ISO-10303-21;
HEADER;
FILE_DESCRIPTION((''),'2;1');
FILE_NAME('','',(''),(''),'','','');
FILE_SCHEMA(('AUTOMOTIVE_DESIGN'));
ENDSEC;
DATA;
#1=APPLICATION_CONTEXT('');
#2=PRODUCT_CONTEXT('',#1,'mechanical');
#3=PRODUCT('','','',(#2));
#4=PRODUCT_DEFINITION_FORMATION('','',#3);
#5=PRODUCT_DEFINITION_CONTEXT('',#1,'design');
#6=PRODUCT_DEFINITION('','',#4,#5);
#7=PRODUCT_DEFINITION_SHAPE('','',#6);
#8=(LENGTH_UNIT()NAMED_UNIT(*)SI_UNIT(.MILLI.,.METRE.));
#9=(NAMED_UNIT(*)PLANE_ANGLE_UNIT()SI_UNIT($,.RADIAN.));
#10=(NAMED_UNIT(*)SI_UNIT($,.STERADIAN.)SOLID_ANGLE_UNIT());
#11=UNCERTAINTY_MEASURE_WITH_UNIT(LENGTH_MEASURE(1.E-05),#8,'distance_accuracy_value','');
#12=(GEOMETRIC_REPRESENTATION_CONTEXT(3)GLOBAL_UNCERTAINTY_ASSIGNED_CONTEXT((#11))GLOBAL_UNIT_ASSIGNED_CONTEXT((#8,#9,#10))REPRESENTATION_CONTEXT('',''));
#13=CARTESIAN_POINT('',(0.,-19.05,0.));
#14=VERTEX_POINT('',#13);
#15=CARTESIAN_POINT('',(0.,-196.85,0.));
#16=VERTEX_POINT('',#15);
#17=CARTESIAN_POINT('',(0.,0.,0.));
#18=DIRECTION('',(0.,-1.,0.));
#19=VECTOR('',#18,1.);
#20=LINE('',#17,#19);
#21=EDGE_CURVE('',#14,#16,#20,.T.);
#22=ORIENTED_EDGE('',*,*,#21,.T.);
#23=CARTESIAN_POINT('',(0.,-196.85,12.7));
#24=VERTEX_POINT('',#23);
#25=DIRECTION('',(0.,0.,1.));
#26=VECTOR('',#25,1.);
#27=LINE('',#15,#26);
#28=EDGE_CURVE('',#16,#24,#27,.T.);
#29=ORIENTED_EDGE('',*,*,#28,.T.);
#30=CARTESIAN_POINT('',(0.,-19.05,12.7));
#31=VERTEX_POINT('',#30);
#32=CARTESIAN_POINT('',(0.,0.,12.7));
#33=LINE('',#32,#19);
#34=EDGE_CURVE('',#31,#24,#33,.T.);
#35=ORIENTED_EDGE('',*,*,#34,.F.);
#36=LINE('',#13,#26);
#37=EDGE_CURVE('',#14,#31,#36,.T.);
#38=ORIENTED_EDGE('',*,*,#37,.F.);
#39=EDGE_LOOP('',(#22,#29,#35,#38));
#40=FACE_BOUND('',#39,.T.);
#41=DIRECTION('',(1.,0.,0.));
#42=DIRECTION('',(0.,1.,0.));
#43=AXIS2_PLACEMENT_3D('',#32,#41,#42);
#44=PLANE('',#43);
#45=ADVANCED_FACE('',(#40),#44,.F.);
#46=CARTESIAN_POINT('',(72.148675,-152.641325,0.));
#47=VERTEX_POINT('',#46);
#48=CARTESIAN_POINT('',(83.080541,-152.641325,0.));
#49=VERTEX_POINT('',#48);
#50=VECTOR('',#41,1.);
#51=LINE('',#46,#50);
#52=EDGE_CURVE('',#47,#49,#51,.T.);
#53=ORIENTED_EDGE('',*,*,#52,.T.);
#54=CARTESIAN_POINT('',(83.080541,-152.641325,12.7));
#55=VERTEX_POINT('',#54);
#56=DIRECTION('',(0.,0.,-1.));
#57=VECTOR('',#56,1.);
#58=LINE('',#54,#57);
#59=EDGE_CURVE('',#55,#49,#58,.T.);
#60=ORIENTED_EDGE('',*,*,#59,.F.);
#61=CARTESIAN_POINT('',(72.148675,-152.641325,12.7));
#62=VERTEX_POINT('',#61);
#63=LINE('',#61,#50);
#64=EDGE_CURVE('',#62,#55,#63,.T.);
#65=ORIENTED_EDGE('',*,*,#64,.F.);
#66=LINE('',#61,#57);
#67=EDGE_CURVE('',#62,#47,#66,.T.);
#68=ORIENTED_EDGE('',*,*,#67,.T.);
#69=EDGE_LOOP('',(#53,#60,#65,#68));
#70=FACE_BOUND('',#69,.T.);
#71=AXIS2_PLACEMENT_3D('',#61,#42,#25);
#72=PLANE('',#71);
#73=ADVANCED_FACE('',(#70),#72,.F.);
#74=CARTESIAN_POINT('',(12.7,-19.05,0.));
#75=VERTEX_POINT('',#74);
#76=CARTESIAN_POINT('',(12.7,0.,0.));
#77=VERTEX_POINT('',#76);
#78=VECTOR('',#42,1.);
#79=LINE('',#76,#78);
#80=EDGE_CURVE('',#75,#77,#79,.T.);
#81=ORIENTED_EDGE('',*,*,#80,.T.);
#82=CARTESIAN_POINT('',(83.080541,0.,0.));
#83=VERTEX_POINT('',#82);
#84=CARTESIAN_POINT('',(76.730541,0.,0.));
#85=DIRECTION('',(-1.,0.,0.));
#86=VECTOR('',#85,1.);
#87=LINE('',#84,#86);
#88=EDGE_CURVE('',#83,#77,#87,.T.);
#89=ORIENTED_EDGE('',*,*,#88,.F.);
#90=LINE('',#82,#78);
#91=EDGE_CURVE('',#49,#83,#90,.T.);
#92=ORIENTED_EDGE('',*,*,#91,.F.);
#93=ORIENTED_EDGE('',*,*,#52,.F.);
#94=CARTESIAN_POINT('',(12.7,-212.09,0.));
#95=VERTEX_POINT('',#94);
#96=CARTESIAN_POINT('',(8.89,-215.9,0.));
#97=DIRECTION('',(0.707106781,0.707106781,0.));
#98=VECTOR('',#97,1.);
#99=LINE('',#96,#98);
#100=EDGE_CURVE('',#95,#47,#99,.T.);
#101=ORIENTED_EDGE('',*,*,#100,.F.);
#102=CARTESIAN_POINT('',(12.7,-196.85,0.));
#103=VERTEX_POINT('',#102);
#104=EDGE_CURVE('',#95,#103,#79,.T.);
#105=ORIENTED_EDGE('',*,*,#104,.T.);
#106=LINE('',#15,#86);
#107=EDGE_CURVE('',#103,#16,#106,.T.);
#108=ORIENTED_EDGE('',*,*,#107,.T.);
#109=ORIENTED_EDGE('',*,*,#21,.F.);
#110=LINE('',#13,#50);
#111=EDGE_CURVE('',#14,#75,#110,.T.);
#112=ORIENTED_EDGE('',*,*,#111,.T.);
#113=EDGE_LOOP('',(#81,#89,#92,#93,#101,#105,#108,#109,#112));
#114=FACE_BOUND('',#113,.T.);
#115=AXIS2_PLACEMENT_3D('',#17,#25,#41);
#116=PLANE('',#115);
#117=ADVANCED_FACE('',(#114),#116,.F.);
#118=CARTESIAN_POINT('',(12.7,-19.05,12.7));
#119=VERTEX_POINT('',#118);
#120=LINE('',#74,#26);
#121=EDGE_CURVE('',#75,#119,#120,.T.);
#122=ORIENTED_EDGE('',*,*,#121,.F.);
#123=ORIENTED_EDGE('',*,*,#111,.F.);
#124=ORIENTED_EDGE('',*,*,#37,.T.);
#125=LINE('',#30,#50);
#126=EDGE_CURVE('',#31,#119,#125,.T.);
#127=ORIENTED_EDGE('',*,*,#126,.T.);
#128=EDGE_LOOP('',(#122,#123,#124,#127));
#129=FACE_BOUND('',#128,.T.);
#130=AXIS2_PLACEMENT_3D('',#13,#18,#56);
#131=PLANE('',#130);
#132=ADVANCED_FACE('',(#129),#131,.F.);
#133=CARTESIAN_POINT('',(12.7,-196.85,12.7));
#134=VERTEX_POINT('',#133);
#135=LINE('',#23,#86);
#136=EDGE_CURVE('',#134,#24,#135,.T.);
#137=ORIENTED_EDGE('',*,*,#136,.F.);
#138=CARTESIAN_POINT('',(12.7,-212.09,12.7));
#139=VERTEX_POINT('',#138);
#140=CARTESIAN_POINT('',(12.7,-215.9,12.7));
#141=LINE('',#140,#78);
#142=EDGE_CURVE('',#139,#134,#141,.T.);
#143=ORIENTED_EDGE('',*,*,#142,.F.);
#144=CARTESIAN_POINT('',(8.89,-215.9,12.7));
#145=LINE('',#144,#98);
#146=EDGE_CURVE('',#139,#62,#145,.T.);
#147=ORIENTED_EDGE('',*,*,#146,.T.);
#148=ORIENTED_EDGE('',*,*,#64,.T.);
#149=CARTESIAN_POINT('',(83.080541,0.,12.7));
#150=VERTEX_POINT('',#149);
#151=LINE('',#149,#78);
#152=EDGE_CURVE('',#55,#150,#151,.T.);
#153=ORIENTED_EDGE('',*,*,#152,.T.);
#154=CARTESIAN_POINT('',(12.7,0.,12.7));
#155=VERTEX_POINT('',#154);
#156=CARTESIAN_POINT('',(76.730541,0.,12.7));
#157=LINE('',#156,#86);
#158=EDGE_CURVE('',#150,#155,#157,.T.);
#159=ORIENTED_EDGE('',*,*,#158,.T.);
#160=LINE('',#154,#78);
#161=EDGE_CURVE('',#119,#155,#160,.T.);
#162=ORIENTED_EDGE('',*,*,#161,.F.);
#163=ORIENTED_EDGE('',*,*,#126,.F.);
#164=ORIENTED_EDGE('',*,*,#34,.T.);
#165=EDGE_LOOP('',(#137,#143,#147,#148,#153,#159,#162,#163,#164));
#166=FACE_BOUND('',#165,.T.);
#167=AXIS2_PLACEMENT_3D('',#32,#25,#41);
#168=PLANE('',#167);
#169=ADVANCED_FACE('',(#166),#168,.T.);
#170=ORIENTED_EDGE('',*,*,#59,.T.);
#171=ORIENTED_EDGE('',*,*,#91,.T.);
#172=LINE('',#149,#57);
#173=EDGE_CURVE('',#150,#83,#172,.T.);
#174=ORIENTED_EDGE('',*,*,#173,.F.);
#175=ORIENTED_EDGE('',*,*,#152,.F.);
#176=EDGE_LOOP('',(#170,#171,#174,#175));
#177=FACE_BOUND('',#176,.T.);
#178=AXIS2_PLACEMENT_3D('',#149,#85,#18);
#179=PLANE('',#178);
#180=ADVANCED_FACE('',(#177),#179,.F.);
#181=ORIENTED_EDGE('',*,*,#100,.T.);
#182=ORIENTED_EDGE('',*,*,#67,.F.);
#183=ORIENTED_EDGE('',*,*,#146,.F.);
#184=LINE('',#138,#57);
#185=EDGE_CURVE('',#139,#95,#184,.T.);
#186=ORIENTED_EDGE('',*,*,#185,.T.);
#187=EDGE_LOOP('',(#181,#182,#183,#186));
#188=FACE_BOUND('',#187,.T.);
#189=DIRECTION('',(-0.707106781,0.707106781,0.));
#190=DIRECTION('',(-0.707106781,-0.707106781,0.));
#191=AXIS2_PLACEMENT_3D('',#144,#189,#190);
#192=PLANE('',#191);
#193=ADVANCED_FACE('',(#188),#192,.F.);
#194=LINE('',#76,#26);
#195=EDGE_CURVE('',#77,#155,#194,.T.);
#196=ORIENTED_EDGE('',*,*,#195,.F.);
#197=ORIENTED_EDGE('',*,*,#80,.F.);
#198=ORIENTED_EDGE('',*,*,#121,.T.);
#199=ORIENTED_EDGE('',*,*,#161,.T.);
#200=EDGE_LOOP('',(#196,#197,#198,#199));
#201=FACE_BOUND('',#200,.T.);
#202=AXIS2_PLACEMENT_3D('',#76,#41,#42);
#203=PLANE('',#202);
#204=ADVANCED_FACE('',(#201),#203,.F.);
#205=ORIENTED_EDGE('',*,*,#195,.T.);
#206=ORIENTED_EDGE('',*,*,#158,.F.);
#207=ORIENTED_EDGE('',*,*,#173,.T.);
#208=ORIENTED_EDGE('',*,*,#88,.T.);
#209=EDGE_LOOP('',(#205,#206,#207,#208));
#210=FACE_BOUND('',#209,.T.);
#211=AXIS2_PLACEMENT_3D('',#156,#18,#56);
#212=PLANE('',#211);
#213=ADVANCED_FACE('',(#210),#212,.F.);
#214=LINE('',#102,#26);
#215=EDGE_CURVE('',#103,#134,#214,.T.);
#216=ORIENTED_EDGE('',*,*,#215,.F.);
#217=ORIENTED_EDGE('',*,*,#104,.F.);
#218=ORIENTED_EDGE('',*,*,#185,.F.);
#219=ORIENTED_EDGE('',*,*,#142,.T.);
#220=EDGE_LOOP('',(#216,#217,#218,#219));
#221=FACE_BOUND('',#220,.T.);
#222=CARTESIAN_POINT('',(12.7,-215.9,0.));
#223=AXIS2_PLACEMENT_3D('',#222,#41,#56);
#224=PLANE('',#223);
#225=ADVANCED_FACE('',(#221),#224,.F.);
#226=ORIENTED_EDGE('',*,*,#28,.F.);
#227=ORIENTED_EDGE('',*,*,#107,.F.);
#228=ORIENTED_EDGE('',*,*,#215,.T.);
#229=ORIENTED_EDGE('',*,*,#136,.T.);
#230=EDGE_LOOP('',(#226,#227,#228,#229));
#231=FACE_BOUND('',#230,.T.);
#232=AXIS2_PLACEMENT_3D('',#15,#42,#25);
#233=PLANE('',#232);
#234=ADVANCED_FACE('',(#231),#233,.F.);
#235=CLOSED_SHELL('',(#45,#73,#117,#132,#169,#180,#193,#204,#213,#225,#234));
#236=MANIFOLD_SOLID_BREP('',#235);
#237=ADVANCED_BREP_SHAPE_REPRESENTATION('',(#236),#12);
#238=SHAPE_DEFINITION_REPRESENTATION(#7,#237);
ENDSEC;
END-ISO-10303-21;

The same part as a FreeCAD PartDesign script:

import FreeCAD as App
import Part
import Sketcher
Q = App.Units.Quantity


def add_polygon(sketch, points):
    """Adds a closed chain of lines whose ends are joined by coincident constraints."""
    first, n = sketch.GeometryCount, len(points)
    for a, b in zip(points, points[1:] + points[:1]):
        sketch.addGeometry(Part.LineSegment(App.Vector(*a, 0), App.Vector(*b, 0)), False)
    for i in range(n):
        sketch.addConstraint(Sketcher.Constraint("Coincident", first + i, 2, first + (i + 1) % n, 1))

doc = App.newDocument("Part")
params = doc.addObject("Spreadsheet::Sheet", "Params")
for row, (alias, value) in enumerate([
    ("sketch1_height", "8.5 in"),
    ("sketch1_width", "0.35 in"),
    ("pad1_length", "0.5 in"),
    ("sketch2_width", "0.5 in"),
    ("sketch2_height", "0.75 in"),
], start=1):
    params.set(f"A{row}", alias)
    params.set(f"B{row}", "=" + value)
    params.setAlias(f"B{row}", alias)

body = doc.addObject("PartDesign::Body", "Body")

# Sketch on XY plane
sketch1 = body.newObject("Sketcher::SketchObject", "Sketch")
sketch1.AttachmentSupport = (doc.getObject("XY_Plane"), [""])
sketch1.MapMode = "FlatFace"
add_polygon(sketch1, [(0, -215.9), (8.89, -215.9), (72.148675, -152.641325), (83.080541, -152.641325), (83.080541, 0), (0, 0)])  # lines 0-5
sketch1.addConstraint([
    Sketcher.Constraint("Horizontal", 0),
    Sketcher.Constraint("Horizontal", 2),
    Sketcher.Constraint("Vertical", 3),
    Sketcher.Constraint("Horizontal", 4),
    Sketcher.Constraint("Vertical", 5),
    Sketcher.Constraint("Coincident", 4, 2, -1, 1),
    Sketcher.Constraint("DistanceY", 5, 2, 5, 1, Q("8.5 in")),
    Sketcher.Constraint("Angle", 1, Q("45 deg")),
    Sketcher.Constraint("DistanceX", 0, 1, 0, 2, Q("0.35 in")),
    Sketcher.Constraint("DistanceX", 4, 2, 4, 1, 83.080541),
    Sketcher.Constraint("DistanceX", 2, 1, 2, 2, 10.931866),
])
sketch1.setExpression("Constraints[12]", "Params.sketch1_height")
sketch1.setExpression("Constraints[14]", "Params.sketch1_width")
pad1 = body.newObject("PartDesign::Pad", "Pad")
pad1.Profile = sketch1
pad1.setExpression("Length", "Params.pad1_length")

# Sketch on XY plane
sketch2 = body.newObject("Sketcher::SketchObject", "Sketch001")
sketch2.AttachmentSupport = (doc.getObject("XY_Plane"), [""])
sketch2.MapMode = "FlatFace"
sketch2.AttachmentOffset = App.Placement(App.Vector(0, 0, 0.5 * 25.4), App.Rotation())
add_polygon(sketch2, [(0, 0), (0, -19.05), (12.7, -19.05), (12.7, 0)])  # lines 0-3
add_polygon(sketch2, [(0, -196.85), (0, -215.9), (12.7, -215.9), (12.7, -196.85)])  # lines 4-7
sketch2.addConstraint([
    Sketcher.Constraint("Vertical", 0),
    Sketcher.Constraint("Horizontal", 1),
    Sketcher.Constraint("Vertical", 2),
    Sketcher.Constraint("Horizontal", 3),
    Sketcher.Constraint("Vertical", 4),
    Sketcher.Constraint("Horizontal", 5),
    Sketcher.Constraint("Vertical", 6),
    Sketcher.Constraint("Horizontal", 7),
    Sketcher.Constraint("Coincident", 3, 2, -1, 1),
    Sketcher.Constraint("PointOnObject", 4, 2, -2),
    Sketcher.Constraint("Vertical", 2, 2, 5, 2),
    Sketcher.Constraint("Equal", 2, 4),
    Sketcher.Constraint("DistanceX", 1, 1, 1, 2, Q("0.5 in")),
    Sketcher.Constraint("DistanceY", 6, 2, 1, 2, Q("7 in")),
    Sketcher.Constraint("DistanceY", 0, 2, 0, 1, Q("0.75 in")),
])
sketch2.setExpression("Constraints[20]", "Params.sketch2_width")
sketch2.setExpression("Constraints[22]", "Params.sketch2_height")
pocket1 = body.newObject("PartDesign::Pocket", "Pocket")
pocket1.Profile = sketch2
pocket1.Type = "ThroughAll"

doc.recompute()
